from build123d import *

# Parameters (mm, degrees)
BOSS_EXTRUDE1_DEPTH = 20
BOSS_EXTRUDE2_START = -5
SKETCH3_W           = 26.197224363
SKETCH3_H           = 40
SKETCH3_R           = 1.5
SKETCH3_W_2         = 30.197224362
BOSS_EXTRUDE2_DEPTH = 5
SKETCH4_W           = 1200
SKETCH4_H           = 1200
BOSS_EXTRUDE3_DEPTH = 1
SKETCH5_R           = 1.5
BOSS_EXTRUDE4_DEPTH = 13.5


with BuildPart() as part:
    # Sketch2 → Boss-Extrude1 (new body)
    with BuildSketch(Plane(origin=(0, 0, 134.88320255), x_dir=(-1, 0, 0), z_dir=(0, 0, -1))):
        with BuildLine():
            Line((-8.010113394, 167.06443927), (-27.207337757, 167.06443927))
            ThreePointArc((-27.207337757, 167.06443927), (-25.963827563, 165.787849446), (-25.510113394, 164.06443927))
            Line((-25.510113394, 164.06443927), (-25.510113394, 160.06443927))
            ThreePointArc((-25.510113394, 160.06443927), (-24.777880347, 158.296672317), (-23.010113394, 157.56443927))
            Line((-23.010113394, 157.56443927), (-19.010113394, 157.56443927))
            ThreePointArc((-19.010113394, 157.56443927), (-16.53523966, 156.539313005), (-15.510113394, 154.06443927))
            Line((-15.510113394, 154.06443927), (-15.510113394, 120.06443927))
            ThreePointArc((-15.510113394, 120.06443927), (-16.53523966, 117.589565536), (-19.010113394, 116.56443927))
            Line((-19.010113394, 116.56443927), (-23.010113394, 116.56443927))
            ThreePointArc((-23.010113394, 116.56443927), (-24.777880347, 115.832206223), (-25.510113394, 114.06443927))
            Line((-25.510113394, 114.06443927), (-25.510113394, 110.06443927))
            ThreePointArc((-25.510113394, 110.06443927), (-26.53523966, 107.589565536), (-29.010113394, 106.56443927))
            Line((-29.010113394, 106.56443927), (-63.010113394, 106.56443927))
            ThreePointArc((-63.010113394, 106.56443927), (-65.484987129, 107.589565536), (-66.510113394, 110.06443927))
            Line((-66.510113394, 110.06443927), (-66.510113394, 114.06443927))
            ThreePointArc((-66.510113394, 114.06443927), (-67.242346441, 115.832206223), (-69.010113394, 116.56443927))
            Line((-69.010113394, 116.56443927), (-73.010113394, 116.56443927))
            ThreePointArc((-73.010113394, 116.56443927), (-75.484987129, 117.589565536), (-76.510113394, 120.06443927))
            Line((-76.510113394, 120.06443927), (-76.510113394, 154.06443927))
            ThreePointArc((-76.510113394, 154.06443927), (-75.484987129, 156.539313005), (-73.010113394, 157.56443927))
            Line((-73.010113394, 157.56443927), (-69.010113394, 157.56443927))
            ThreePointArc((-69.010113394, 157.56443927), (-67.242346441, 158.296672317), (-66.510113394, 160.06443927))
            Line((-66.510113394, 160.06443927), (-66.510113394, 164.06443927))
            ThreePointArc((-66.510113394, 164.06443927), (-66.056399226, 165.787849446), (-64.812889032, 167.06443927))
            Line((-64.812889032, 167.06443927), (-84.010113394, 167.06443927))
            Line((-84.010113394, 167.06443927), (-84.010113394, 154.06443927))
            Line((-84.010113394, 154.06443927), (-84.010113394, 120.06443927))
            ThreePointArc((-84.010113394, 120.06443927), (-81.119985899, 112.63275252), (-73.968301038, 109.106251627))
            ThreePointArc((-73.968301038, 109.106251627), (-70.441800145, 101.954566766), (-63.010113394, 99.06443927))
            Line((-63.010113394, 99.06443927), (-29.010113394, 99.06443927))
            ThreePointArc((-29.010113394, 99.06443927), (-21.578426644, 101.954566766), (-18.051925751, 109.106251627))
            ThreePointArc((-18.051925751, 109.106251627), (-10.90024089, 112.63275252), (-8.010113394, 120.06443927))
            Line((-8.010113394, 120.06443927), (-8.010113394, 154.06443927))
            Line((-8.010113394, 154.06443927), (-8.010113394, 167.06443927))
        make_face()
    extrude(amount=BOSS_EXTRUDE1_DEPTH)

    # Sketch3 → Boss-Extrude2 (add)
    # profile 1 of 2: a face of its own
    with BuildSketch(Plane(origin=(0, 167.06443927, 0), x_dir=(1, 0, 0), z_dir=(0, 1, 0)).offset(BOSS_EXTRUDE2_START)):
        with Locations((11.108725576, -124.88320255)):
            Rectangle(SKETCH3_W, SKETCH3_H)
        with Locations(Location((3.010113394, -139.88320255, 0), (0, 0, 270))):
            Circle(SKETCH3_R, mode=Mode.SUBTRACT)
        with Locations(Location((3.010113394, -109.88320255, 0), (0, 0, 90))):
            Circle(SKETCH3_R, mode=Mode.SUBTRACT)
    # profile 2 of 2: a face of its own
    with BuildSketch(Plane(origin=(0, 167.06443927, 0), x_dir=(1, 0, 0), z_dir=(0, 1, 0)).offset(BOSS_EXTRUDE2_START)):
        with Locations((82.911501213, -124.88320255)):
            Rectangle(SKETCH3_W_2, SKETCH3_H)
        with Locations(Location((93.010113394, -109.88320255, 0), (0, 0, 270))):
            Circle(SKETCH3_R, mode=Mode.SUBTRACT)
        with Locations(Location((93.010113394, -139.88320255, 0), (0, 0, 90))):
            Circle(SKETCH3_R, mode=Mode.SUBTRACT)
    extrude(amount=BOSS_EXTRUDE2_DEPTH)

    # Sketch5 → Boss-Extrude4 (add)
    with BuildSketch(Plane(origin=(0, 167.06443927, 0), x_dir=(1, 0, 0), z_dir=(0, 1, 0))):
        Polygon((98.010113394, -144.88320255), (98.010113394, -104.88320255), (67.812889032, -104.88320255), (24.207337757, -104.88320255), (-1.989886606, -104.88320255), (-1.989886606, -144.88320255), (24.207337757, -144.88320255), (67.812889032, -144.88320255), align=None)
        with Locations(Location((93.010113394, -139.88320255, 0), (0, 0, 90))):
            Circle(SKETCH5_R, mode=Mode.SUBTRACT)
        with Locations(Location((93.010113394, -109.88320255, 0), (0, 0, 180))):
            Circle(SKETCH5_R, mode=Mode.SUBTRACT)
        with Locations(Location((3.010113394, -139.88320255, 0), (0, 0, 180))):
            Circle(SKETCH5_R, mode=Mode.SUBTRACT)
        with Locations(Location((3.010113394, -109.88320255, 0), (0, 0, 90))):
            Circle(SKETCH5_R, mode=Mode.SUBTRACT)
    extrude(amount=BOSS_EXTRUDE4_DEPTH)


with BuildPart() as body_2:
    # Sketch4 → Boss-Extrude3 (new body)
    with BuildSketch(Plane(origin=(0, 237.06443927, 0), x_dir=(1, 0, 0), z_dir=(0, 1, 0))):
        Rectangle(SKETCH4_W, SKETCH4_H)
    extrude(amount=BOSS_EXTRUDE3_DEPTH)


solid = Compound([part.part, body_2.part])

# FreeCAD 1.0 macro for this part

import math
import FreeCAD as App
import Part
import Sketcher

V = App.Vector


def add_polygon(sketch, points):
    """Adds a closed chain of lines whose ends are joined by coincident constraints."""
    first, n = sketch.GeometryCount, len(points)
    for a, b in zip(points, points[1:] + points[:1]):
        sketch.addGeometry(Part.LineSegment(App.Vector(*a, 0), App.Vector(*b, 0)), False)
    for i in range(n):
        sketch.addConstraint(Sketcher.Constraint("Coincident", first + i, 2, first + (i + 1) % n, 1))

doc = App.newDocument("Part")
body = doc.addObject("PartDesign::Body", "Body")

sketch1 = body.newObject("Sketcher::SketchObject", "Sketch")
sketch1.AttachmentSupport = (doc.getObject("XY_Plane"), [""])
sketch1.MapMode = "FlatFace"
sketch1.AttachmentOffset = App.Placement(V(0, 0, 134.883203), App.Rotation())
sketch1.addGeometry(Part.LineSegment(V(8, 167.1, 0), V(27.2, 167.1, 0)), False)
sketch1.addGeometry(Part.ArcOfCircle(Part.Circle(V(29, 164.1, 0), V(0, 0, 1), 3.5), math.radians(121), math.radians(180)), False)
sketch1.addGeometry(Part.LineSegment(V(25.5, 164.1, 0), V(25.5, 160.1, 0)), False)
sketch1.addGeometry(Part.ArcOfCircle(Part.Circle(V(23, 160.1, 0), V(0, 0, 1), 2.5), math.radians(-90), math.radians(0)), False)
sketch1.addGeometry(Part.LineSegment(V(23, 157.6, 0), V(19, 157.6, 0)), False)
sketch1.addGeometry(Part.ArcOfCircle(Part.Circle(V(19, 154.1, 0), V(0, 0, 1), 3.5), math.radians(90), math.radians(180)), False)
sketch1.addGeometry(Part.LineSegment(V(15.5, 154.1, 0), V(15.5, 120.1, 0)), False)
sketch1.addGeometry(Part.ArcOfCircle(Part.Circle(V(19, 120.1, 0), V(0, 0, 1), 3.5), math.radians(-180), math.radians(-90)), False)
sketch1.addGeometry(Part.LineSegment(V(19, 116.6, 0), V(23, 116.6, 0)), False)
sketch1.addGeometry(Part.ArcOfCircle(Part.Circle(V(23, 114.1, 0), V(0, 0, 1), 2.5), math.radians(0), math.radians(90)), False)
sketch1.addGeometry(Part.LineSegment(V(25.5, 114.1, 0), V(25.5, 110.1, 0)), False)
sketch1.addGeometry(Part.ArcOfCircle(Part.Circle(V(29, 110.1, 0), V(0, 0, 1), 3.5), math.radians(-180), math.radians(-90)), False)
sketch1.addGeometry(Part.LineSegment(V(29, 106.6, 0), V(63, 106.6, 0)), False)
sketch1.addGeometry(Part.ArcOfCircle(Part.Circle(V(63, 110.1, 0), V(0, 0, 1), 3.5), math.radians(-90), math.radians(0)), False)
sketch1.addGeometry(Part.LineSegment(V(66.5, 110.1, 0), V(66.5, 114.1, 0)), False)
sketch1.addGeometry(Part.ArcOfCircle(Part.Circle(V(69, 114.1, 0), V(0, 0, 1), 2.5), math.radians(90), math.radians(180)), False)
sketch1.addGeometry(Part.LineSegment(V(69, 116.6, 0), V(73, 116.6, 0)), False)
sketch1.addGeometry(Part.ArcOfCircle(Part.Circle(V(73, 120.1, 0), V(0, 0, 1), 3.5), math.radians(-90), math.radians(0)), False)
sketch1.addGeometry(Part.LineSegment(V(76.5, 120.1, 0), V(76.5, 154.1, 0)), False)
sketch1.addGeometry(Part.ArcOfCircle(Part.Circle(V(73, 154.1, 0), V(0, 0, 1), 3.5), math.radians(0), math.radians(90)), False)
sketch1.addGeometry(Part.LineSegment(V(73, 157.6, 0), V(69, 157.6, 0)), False)
sketch1.addGeometry(Part.ArcOfCircle(Part.Circle(V(69, 160.1, 0), V(0, 0, 1), 2.5), math.radians(180), math.radians(270)), False)
sketch1.addGeometry(Part.LineSegment(V(66.5, 160.1, 0), V(66.5, 164.1, 0)), False)
sketch1.addGeometry(Part.ArcOfCircle(Part.Circle(V(63, 164.1, 0), V(0, 0, 1), 3.5), math.radians(0), math.radians(59)), False)
sketch1.addGeometry(Part.LineSegment(V(64.8, 167.1, 0), V(84, 167.1, 0)), False)
sketch1.addGeometry(Part.LineSegment(V(84, 167.1, 0), V(84, 120.1, 0)), False)
sketch1.addGeometry(Part.ArcOfCircle(Part.Circle(V(73, 120.1, 0), V(0, 0, 1), 11), math.radians(-85), math.radians(0)), False)
sketch1.addGeometry(Part.ArcOfCircle(Part.Circle(V(63, 110.1, 0), V(0, 0, 1), 11), math.radians(-90), math.radians(-5)), False)
sketch1.addGeometry(Part.LineSegment(V(63, 99.1, 0), V(29, 99.1, 0)), False)
sketch1.addGeometry(Part.ArcOfCircle(Part.Circle(V(29, 110.1, 0), V(0, 0, 1), 11), math.radians(-175), math.radians(-90)), False)
sketch1.addGeometry(Part.ArcOfCircle(Part.Circle(V(19, 120.1, 0), V(0, 0, 1), 11), math.radians(-180), math.radians(-95)), False)
sketch1.addGeometry(Part.LineSegment(V(8, 120.1, 0), V(8, 167.1, 0)), False)
sketch1.addConstraint(Sketcher.Constraint("Coincident", 0, 2, 1, 1))
sketch1.addConstraint(Sketcher.Constraint("Tangent", 1, 2, 2, 1))
sketch1.addConstraint(Sketcher.Constraint("Tangent", 2, 2, 3, 2))
sketch1.addConstraint(Sketcher.Constraint("Tangent", 3, 1, 4, 1))
sketch1.addConstraint(Sketcher.Constraint("Tangent", 4, 2, 5, 1))
sketch1.addConstraint(Sketcher.Constraint("Tangent", 5, 2, 6, 1))
sketch1.addConstraint(Sketcher.Constraint("Tangent", 6, 2, 7, 1))
sketch1.addConstraint(Sketcher.Constraint("Tangent", 7, 2, 8, 1))
sketch1.addConstraint(Sketcher.Constraint("Tangent", 8, 2, 9, 2))
sketch1.addConstraint(Sketcher.Constraint("Tangent", 9, 1, 10, 1))
sketch1.addConstraint(Sketcher.Constraint("Tangent", 10, 2, 11, 1))
sketch1.addConstraint(Sketcher.Constraint("Tangent", 11, 2, 12, 1))
sketch1.addConstraint(Sketcher.Constraint("Tangent", 12, 2, 13, 1))
sketch1.addConstraint(Sketcher.Constraint("Tangent", 13, 2, 14, 1))
sketch1.addConstraint(Sketcher.Constraint("Tangent", 14, 2, 15, 2))
sketch1.addConstraint(Sketcher.Constraint("Tangent", 15, 1, 16, 1))
sketch1.addConstraint(Sketcher.Constraint("Tangent", 16, 2, 17, 1))
sketch1.addConstraint(Sketcher.Constraint("Tangent", 17, 2, 18, 1))
sketch1.addConstraint(Sketcher.Constraint("Tangent", 18, 2, 19, 1))
sketch1.addConstraint(Sketcher.Constraint("Tangent", 19, 2, 20, 1))
sketch1.addConstraint(Sketcher.Constraint("Tangent", 20, 2, 21, 2))
sketch1.addConstraint(Sketcher.Constraint("Tangent", 21, 1, 22, 1))
sketch1.addConstraint(Sketcher.Constraint("Tangent", 22, 2, 23, 1))
sketch1.addConstraint(Sketcher.Constraint("Coincident", 23, 2, 24, 1))
sketch1.addConstraint(Sketcher.Constraint("Coincident", 24, 2, 25, 1))
sketch1.addConstraint(Sketcher.Constraint("Tangent", 25, 2, 26, 2))
sketch1.addConstraint(Sketcher.Constraint("Coincident", 26, 1, 27, 2))
sketch1.addConstraint(Sketcher.Constraint("Tangent", 27, 1, 28, 1))
sketch1.addConstraint(Sketcher.Constraint("Tangent", 28, 2, 29, 2))
sketch1.addConstraint(Sketcher.Constraint("Coincident", 29, 1, 30, 2))
sketch1.addConstraint(Sketcher.Constraint("Tangent", 30, 1, 31, 1))
sketch1.addConstraint(Sketcher.Constraint("Coincident", 31, 2, 0, 1))
sketch1.addConstraint(Sketcher.Constraint("Horizontal", 0))
sketch1.addConstraint(Sketcher.Constraint("Vertical", 2))
sketch1.addConstraint(Sketcher.Constraint("Horizontal", 4))
sketch1.addConstraint(Sketcher.Constraint("Vertical", 6))
sketch1.addConstraint(Sketcher.Constraint("Horizontal", 8))
sketch1.addConstraint(Sketcher.Constraint("Vertical", 10))
sketch1.addConstraint(Sketcher.Constraint("Horizontal", 12))
sketch1.addConstraint(Sketcher.Constraint("Vertical", 14))
sketch1.addConstraint(Sketcher.Constraint("Horizontal", 16))
sketch1.addConstraint(Sketcher.Constraint("Vertical", 18))
sketch1.addConstraint(Sketcher.Constraint("Horizontal", 20))
sketch1.addConstraint(Sketcher.Constraint("Vertical", 22))
sketch1.addConstraint(Sketcher.Constraint("Horizontal", 24))
sketch1.addConstraint(Sketcher.Constraint("Vertical", 25))
sketch1.addConstraint(Sketcher.Constraint("Horizontal", 28))
sketch1.addConstraint(Sketcher.Constraint("Vertical", 31))
sketch1.addConstraint(Sketcher.Constraint("Coincident", 26, 3, 17, 3))
sketch1.addConstraint(Sketcher.Constraint("Coincident", 27, 3, 13, 3))
sketch1.addConstraint(Sketcher.Constraint("Coincident", 29, 3, 11, 3))
sketch1.addConstraint(Sketcher.Constraint("Coincident", 30, 3, 7, 3))
sketch1.addConstraint(Sketcher.Constraint("Equal", 1, 5))
sketch1.addConstraint(Sketcher.Constraint("Equal", 5, 7))
sketch1.addConstraint(Sketcher.Constraint("Equal", 3, 9))
sketch1.addConstraint(Sketcher.Constraint("Equal", 7, 11))
sketch1.addConstraint(Sketcher.Constraint("Equal", 11, 13))
sketch1.addConstraint(Sketcher.Constraint("Equal", 9, 15))
sketch1.addConstraint(Sketcher.Constraint("Equal", 13, 17))
sketch1.addConstraint(Sketcher.Constraint("Equal", 17, 19))
sketch1.addConstraint(Sketcher.Constraint("Equal", 15, 21))
sketch1.addConstraint(Sketcher.Constraint("Equal", 19, 23))
sketch1.addConstraint(Sketcher.Constraint("Equal", 26, 27))
sketch1.addConstraint(Sketcher.Constraint("Equal", 29, 30))
sketch1.addConstraint(Sketcher.Constraint("Horizontal", 9, 3, 15, 3))
sketch1.addConstraint(Sketcher.Constraint("Horizontal", 5, 3, 19, 3))
sketch1.addConstraint(Sketcher.Constraint("Horizontal", 1, 3, 23, 3))
sketch1.addConstraint(Sketcher.Constraint("Horizontal", 0, 2, 23, 2))
sketch1.addConstraint(Sketcher.Constraint("Horizontal", 26, 1, 29, 1))
sketch1.addConstraint(Sketcher.Constraint("Vertical", 3, 3, 9, 3))
sketch1.addConstraint(Sketcher.Constraint("Vertical", 15, 3, 21, 3))
sketch1.addConstraint(Sketcher.Constraint("Equal", 20, 2))
sketch1.addConstraint(Sketcher.Constraint("Equal", 28, 6))
sketch1.addConstraint(Sketcher.Constraint("Equal", 2, 10))
sketch1.addConstraint(Sketcher.Constraint("Radius", 26, 11.0))
sketch1.addConstraint(Sketcher.Constraint("Radius", 1, 3.5))
sketch1.addConstraint(Sketcher.Constraint("Radius", 3, 2.5))
sketch1.addConstraint(Sketcher.Constraint("DistanceX", 4, 2, 4, 1, 4.0))
sketch1.addConstraint(Sketcher.Constraint("DistanceX", 12, 1, 12, 2, 34.0))
sketch1.addConstraint(Sketcher.Constraint("DistanceY", 25, 2, 25, 1, 47.0))
sketch1.addConstraint(Sketcher.Constraint("DistanceX", -1, 1, 26, 1, 73.968301))
sketch1.addConstraint(Sketcher.Constraint("DistanceY", -1, 1, 1, 3, 164.064439))
pad1 = body.newObject("PartDesign::Pad", "Pad")
pad1.Profile = sketch1
pad1.Length = 20
pad1.Reversed = True

sketch2 = body.newObject("Sketcher::SketchObject", "Sketch001")
sketch2.AttachmentSupport = (doc.getObject("XZ_Plane"), [""])
sketch2.MapMode = "FlatFace"
sketch2.AttachmentOffset = App.Placement(V(0, 0, -162.064439), App.Rotation())
add_polygon(sketch2, [(-2, 104.9), (-2, 144.9), (24.2, 144.9), (24.2, 104.9)])
sketch2.addGeometry(Part.Circle(V(3, 139.9, 0), V(0, 0, 1), 1.5), False)
sketch2.addGeometry(Part.Circle(V(3, 109.9, 0), V(0, 0, 1), 1.5), False)
add_polygon(sketch2, [(67.8, 104.9), (67.8, 144.9), (98, 144.9), (98, 104.9)])
sketch2.addGeometry(Part.Circle(V(93, 139.9, 0), V(0, 0, 1), 1.5), False)
sketch2.addGeometry(Part.Circle(V(93, 109.9, 0), V(0, 0, 1), 1.5), False)
sketch2.addConstraint(Sketcher.Constraint("Vertical", 0))
sketch2.addConstraint(Sketcher.Constraint("Horizontal", 1))
sketch2.addConstraint(Sketcher.Constraint("Vertical", 2))
sketch2.addConstraint(Sketcher.Constraint("Horizontal", 3))
sketch2.addConstraint(Sketcher.Constraint("Vertical", 6))
sketch2.addConstraint(Sketcher.Constraint("Horizontal", 7))
sketch2.addConstraint(Sketcher.Constraint("Vertical", 8))
sketch2.addConstraint(Sketcher.Constraint("Horizontal", 9))
sketch2.addConstraint(Sketcher.Constraint("Equal", 4, 5))
sketch2.addConstraint(Sketcher.Constraint("Equal", 5, 10))
sketch2.addConstraint(Sketcher.Constraint("Equal", 10, 11))
sketch2.addConstraint(Sketcher.Constraint("Horizontal", 4, 3, 10, 3))
sketch2.addConstraint(Sketcher.Constraint("Horizontal", 5, 3, 11, 3))
sketch2.addConstraint(Sketcher.Constraint("Horizontal", 1, 2, 6, 2))
sketch2.addConstraint(Sketcher.Constraint("Horizontal", 3, 2, 8, 2))
sketch2.addConstraint(Sketcher.Constraint("Vertical", 4, 3, 5, 3))
sketch2.addConstraint(Sketcher.Constraint("Vertical", 10, 3, 11, 3))
sketch2.addConstraint(Sketcher.Constraint("Diameter", 4, 3.0))
sketch2.addConstraint(Sketcher.Constraint("DistanceY", 0, 1, 0, 2, 40.0))
sketch2.addConstraint(Sketcher.Constraint("DistanceY", 5, 3, 4, 3, 30.0))
sketch2.addConstraint(Sketcher.Constraint("DistanceX", 4, 3, 10, 3, 90.0))
sketch2.addConstraint(Sketcher.Constraint("DistanceX", 0, 2, 4, 3, 5.0))
sketch2.addConstraint(Sketcher.Constraint("DistanceY", 4, 3, 0, 2, 5.0))
sketch2.addConstraint(Sketcher.Constraint("DistanceX", 10, 3, 7, 2, 5.0))
sketch2.addConstraint(Sketcher.Constraint("DistanceX", 1, 1, 1, 2, 26.197224))
sketch2.addConstraint(Sketcher.Constraint("DistanceX", 7, 1, 7, 2, 30.197224))
sketch2.addConstraint(Sketcher.Constraint("DistanceX", -1, 1, 6, 2, 67.812889))
sketch2.addConstraint(Sketcher.Constraint("DistanceY", -1, 1, 4, 3, 139.883203))
pad2 = body.newObject("PartDesign::Pad", "Pad001")
pad2.Profile = sketch2
pad2.Length = 5
pad2.Reversed = True

sketch3 = body.newObject("Sketcher::SketchObject", "Sketch002")
sketch3.AttachmentSupport = (doc.getObject("XZ_Plane"), [""])
sketch3.MapMode = "FlatFace"
sketch3.AttachmentOffset = App.Placement(V(0, 0, -167.064439), App.Rotation())
add_polygon(sketch3, [(98, 144.9), (98, 104.9), (-2, 104.9), (-2, 144.9)])
sketch3.addGeometry(Part.Circle(V(3, 139.9, 0), V(0, 0, 1), 1.5), False)
sketch3.addGeometry(Part.Circle(V(93, 139.9, 0), V(0, 0, 1), 1.5), False)
sketch3.addGeometry(Part.Circle(V(3, 109.9, 0), V(0, 0, 1), 1.5), False)
sketch3.addGeometry(Part.Circle(V(93, 109.9, 0), V(0, 0, 1), 1.5), False)
sketch3.addConstraint(Sketcher.Constraint("Vertical", 0))
sketch3.addConstraint(Sketcher.Constraint("Horizontal", 1))
sketch3.addConstraint(Sketcher.Constraint("Vertical", 2))
sketch3.addConstraint(Sketcher.Constraint("Horizontal", 3))
sketch3.addConstraint(Sketcher.Constraint("Equal", 4, 5))
sketch3.addConstraint(Sketcher.Constraint("Equal", 5, 6))
sketch3.addConstraint(Sketcher.Constraint("Equal", 6, 7))
sketch3.addConstraint(Sketcher.Constraint("Horizontal", 4, 3, 5, 3))
sketch3.addConstraint(Sketcher.Constraint("Horizontal", 6, 3, 7, 3))
sketch3.addConstraint(Sketcher.Constraint("Vertical", 4, 3, 6, 3))
sketch3.addConstraint(Sketcher.Constraint("Vertical", 5, 3, 7, 3))
sketch3.addConstraint(Sketcher.Constraint("Diameter", 4, 3.0))
sketch3.addConstraint(Sketcher.Constraint("DistanceX", 1, 2, 1, 1, 100.0))
sketch3.addConstraint(Sketcher.Constraint("DistanceY", 0, 2, 0, 1, 40.0))
sketch3.addConstraint(Sketcher.Constraint("DistanceX", 4, 3, 5, 3, 90.0))
sketch3.addConstraint(Sketcher.Constraint("DistanceY", 6, 3, 4, 3, 30.0))
sketch3.addConstraint(Sketcher.Constraint("DistanceX", 7, 3, 0, 2, 5.0))
sketch3.addConstraint(Sketcher.Constraint("DistanceY", 0, 2, 7, 3, 5.0))
sketch3.addConstraint(Sketcher.Constraint("DistanceX", -1, 1, 4, 3, 3.010113))
sketch3.addConstraint(Sketcher.Constraint("DistanceY", -1, 1, 4, 3, 139.883203))
pad3 = body.newObject("PartDesign::Pad", "Pad002")
pad3.Profile = sketch3
pad3.Length = 13.5
pad3.Reversed = True
body2 = doc.addObject("PartDesign::Body", "Body001")

sketch4 = body2.newObject("Sketcher::SketchObject", "Sketch003")
sketch4.AttachmentSupport = (doc.getObject("XZ_Plane001"), [""])
sketch4.MapMode = "FlatFace"
sketch4.AttachmentOffset = App.Placement(V(0, 0, -237.064439), App.Rotation())
add_polygon(sketch4, [(-600, -600), (-600, 600), (600, 600), (600, -600)])
sketch4.addConstraint(Sketcher.Constraint("Vertical", 0))
sketch4.addConstraint(Sketcher.Constraint("Horizontal", 1))
sketch4.addConstraint(Sketcher.Constraint("Vertical", 2))
sketch4.addConstraint(Sketcher.Constraint("Horizontal", 3))
sketch4.addConstraint(Sketcher.Constraint("Symmetric", 0, 2, 2, 2, -1, 1))
sketch4.addConstraint(Sketcher.Constraint("Equal", 3, 0))
sketch4.addConstraint(Sketcher.Constraint("DistanceX", 1, 1, 1, 2, 1200.0))
pad4 = body2.newObject("PartDesign::Pad", "Pad003")
pad4.Profile = sketch4
pad4.Length = 1
pad4.Reversed = True

doc.recompute()
